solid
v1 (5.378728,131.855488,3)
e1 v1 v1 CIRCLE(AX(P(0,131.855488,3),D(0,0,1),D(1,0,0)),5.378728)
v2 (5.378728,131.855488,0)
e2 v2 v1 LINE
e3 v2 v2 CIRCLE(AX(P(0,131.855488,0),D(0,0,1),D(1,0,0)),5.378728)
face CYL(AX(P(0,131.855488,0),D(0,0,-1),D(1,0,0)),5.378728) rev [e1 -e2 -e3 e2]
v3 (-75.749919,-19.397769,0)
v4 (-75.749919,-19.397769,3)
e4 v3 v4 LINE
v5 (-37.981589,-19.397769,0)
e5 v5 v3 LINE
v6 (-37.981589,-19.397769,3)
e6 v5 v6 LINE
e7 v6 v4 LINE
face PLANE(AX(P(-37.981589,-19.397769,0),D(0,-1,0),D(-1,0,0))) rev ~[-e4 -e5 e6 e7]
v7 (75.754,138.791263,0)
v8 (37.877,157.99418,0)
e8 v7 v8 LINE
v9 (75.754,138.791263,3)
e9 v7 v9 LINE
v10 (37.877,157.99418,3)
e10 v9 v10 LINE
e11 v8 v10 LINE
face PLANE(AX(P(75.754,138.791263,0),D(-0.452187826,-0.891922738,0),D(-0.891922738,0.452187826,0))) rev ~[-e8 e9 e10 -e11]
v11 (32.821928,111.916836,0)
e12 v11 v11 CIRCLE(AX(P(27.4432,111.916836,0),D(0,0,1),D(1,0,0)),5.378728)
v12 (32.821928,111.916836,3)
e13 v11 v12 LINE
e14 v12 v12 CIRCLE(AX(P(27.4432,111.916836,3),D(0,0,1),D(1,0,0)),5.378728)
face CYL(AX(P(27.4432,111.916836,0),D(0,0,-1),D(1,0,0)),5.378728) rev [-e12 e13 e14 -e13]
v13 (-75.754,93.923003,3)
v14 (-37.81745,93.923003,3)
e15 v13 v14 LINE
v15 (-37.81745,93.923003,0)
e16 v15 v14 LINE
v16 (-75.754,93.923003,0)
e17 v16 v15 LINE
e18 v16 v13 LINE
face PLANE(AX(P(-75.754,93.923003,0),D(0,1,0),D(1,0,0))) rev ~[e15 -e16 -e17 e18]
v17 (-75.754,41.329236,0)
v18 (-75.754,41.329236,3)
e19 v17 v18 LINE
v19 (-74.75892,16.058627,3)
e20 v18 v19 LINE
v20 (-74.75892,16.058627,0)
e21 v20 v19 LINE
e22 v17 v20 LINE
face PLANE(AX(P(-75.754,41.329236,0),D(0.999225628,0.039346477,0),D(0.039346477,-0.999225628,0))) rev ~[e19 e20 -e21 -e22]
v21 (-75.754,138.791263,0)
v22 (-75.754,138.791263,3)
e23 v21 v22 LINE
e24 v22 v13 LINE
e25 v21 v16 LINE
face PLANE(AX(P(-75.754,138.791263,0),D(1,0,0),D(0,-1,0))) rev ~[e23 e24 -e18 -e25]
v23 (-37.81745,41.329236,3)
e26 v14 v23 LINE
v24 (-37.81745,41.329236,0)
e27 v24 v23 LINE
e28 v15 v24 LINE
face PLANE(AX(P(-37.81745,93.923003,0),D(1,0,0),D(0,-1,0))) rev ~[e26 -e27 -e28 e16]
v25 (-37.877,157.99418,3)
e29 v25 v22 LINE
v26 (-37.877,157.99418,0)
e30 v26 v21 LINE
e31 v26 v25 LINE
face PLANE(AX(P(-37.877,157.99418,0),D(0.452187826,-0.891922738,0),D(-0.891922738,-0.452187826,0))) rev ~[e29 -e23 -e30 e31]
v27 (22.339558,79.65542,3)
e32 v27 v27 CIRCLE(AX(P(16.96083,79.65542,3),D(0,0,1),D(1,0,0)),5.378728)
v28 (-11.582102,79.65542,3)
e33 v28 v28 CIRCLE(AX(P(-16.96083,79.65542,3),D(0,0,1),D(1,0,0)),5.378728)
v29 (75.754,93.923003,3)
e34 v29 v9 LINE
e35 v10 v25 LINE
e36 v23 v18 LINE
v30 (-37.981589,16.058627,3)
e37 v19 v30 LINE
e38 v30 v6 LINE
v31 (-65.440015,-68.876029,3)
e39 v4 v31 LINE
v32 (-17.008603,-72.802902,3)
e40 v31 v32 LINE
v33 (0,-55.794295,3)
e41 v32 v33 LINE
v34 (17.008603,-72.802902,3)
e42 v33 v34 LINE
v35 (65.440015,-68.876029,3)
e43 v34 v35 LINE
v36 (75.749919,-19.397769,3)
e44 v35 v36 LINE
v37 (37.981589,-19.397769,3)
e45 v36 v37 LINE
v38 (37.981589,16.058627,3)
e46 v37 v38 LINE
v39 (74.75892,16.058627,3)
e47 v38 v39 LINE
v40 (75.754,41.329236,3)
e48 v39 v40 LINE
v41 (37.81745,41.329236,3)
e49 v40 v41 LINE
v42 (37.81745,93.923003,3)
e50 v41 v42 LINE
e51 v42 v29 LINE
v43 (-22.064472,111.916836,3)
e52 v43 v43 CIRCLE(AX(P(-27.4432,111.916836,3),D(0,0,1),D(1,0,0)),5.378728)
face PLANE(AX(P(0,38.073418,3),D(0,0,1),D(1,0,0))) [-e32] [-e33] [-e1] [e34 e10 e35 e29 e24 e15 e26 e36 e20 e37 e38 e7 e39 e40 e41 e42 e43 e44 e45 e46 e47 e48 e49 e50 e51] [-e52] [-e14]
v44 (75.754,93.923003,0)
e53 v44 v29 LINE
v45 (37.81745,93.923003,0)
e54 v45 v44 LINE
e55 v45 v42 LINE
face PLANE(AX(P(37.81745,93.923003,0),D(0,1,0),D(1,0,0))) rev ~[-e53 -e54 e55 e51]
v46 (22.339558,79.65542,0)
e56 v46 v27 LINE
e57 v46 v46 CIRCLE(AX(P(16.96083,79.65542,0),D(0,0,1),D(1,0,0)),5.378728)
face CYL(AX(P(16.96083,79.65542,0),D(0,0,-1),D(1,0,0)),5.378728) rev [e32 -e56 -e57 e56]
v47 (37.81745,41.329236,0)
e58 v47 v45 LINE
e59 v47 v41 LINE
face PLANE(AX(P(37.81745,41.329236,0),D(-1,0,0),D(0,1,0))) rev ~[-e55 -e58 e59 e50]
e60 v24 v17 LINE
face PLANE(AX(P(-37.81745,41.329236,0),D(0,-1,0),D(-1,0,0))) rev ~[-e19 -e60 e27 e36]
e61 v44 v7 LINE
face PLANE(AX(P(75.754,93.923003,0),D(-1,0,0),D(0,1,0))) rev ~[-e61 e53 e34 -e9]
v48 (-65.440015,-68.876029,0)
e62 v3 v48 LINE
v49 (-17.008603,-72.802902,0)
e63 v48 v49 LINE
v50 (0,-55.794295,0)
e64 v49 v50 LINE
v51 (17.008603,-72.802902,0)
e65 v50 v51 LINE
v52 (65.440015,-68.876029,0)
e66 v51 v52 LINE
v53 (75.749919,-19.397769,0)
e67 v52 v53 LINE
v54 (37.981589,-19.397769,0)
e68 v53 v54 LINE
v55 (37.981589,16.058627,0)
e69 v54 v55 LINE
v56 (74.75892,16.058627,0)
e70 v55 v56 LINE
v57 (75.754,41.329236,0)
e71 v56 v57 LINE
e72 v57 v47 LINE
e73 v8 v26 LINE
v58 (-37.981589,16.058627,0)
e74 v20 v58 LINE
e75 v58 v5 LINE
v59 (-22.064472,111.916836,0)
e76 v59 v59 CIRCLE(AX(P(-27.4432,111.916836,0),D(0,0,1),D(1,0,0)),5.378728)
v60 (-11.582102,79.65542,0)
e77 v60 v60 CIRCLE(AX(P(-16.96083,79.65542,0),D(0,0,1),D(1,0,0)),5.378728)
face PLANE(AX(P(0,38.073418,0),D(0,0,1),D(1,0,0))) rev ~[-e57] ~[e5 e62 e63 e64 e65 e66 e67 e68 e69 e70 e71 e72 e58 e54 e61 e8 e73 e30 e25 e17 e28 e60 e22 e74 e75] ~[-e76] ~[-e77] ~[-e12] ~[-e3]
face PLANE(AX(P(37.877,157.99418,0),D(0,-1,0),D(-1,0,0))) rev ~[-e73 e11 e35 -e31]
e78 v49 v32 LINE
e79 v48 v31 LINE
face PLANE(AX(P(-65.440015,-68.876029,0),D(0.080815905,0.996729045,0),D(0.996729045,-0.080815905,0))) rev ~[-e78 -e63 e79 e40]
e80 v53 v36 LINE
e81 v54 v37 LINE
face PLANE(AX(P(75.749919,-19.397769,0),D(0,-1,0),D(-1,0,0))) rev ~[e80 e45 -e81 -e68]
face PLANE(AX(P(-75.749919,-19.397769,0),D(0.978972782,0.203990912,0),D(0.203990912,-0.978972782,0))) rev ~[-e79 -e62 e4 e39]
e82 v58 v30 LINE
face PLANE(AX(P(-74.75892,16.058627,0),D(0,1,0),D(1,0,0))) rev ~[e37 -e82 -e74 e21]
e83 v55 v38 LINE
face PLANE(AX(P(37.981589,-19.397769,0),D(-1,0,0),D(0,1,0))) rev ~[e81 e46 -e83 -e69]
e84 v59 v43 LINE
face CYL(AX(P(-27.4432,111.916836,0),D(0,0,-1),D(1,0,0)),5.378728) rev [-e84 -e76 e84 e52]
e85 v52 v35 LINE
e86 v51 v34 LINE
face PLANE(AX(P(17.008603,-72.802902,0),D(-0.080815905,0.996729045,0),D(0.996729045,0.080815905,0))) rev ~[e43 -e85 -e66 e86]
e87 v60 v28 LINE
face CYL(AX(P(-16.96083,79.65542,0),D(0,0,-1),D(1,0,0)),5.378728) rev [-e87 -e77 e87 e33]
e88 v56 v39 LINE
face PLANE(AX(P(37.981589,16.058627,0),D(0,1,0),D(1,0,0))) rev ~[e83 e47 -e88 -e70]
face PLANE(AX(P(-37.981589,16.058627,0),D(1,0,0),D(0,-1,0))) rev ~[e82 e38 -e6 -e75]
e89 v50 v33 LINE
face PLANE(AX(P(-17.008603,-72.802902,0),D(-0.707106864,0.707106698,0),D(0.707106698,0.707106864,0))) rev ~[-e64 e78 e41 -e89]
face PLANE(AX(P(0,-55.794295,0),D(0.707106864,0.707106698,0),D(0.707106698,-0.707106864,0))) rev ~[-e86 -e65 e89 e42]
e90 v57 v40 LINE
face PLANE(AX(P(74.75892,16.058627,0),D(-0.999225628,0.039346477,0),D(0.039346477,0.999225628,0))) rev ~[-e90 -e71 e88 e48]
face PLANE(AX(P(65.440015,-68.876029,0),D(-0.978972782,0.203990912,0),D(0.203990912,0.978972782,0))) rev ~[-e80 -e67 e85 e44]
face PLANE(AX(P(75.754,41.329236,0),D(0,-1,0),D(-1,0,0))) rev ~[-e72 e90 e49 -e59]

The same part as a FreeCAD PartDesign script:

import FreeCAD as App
import Part
import Sketcher

V = App.Vector


def add_polygon(sketch, points):
    """Adds a closed chain of lines whose ends are joined by coincident constraints."""
    first, n = sketch.GeometryCount, len(points)
    for a, b in zip(points, points[1:] + points[:1]):
        sketch.addGeometry(Part.LineSegment(App.Vector(*a, 0), App.Vector(*b, 0)), False)
    for i in range(n):
        sketch.addConstraint(Sketcher.Constraint("Coincident", first + i, 2, first + (i + 1) % n, 1))

doc = App.newDocument("Part")
body = doc.addObject("PartDesign::Body", "Body")

# Sketch on XY plane
sketch1 = body.newObject("Sketcher::SketchObject", "Sketch")
sketch1.AttachmentSupport = (doc.getObject("XY_Plane"), [""])
sketch1.MapMode = "FlatFace"
add_polygon(sketch1, [(38, 158), (-38, 158), (-76, 139), (-76, 94), (-38, 94), (-38, 41), (-76, 41), (-75, 16), (-38, 16), (-38, -19), (-76, -19), (-65, -69), (-17, -73), (0, -56), (17, -73), (65, -69), (76, -19), (38, -19), (38, 16), (75, 16), (76, 41), (38, 41), (38, 94), (76, 94), (76, 139)])  # lines 0-24
sketch1.addGeometry(Part.Circle(V(-17, 80, 0), V(0, 0, 1), 5), False)  # 25
sketch1.addGeometry(Part.Circle(V(17, 80, 0), V(0, 0, 1), 5), False)  # 26
sketch1.addGeometry(Part.Circle(V(-27, 112, 0), V(0, 0, 1), 5), False)  # 27
sketch1.addGeometry(Part.Circle(V(27, 112, 0), V(0, 0, 1), 5), False)  # 28
sketch1.addGeometry(Part.Circle(V(0, 132, 0), V(0, 0, 1), 5), False)  # 29
sketch1.addConstraint([
    Sketcher.Constraint("Horizontal", 0),
    Sketcher.Constraint("Vertical", 2),
    Sketcher.Constraint("Horizontal", 3),
    Sketcher.Constraint("Vertical", 4),
    Sketcher.Constraint("Horizontal", 5),
    Sketcher.Constraint("Horizontal", 7),
    Sketcher.Constraint("Vertical", 8),
    Sketcher.Constraint("Horizontal", 9),
    Sketcher.Constraint("Horizontal", 16),
    Sketcher.Constraint("Vertical", 17),
    Sketcher.Constraint("Horizontal", 18),
    Sketcher.Constraint("Horizontal", 20),
    Sketcher.Constraint("Vertical", 21),
    Sketcher.Constraint("Horizontal", 22),
    Sketcher.Constraint("Vertical", 23),
    Sketcher.Constraint("Equal", 25, 26),
    Sketcher.Constraint("Equal", 26, 27),
    Sketcher.Constraint("Equal", 27, 28),
    Sketcher.Constraint("Equal", 28, 29),
    Sketcher.Constraint("Symmetric", 25, 3, 26, 3, -2),
    Sketcher.Constraint("Symmetric", 27, 3, 28, 3, -2),
    Sketcher.Constraint("Symmetric", 11, 2, 13, 2, -2),
    Sketcher.Constraint("Symmetric", 10, 2, 14, 2, -2),
    Sketcher.Constraint("Symmetric", 9, 2, 15, 2, -2),
    Sketcher.Constraint("Symmetric", 7, 2, 17, 2, -2),
    Sketcher.Constraint("Symmetric", 5, 2, 19, 2, -2),
    Sketcher.Constraint("Symmetric", 3, 2, 21, 2, -2),
    Sketcher.Constraint("Symmetric", 1, 2, 23, 2, -2),
    Sketcher.Constraint("PointOnObject", 29, 3, -2),
    Sketcher.Constraint("PointOnObject", 12, 2, -2),
    Sketcher.Constraint("Perpendicular", 12, 13),
    Sketcher.Constraint("Vertical", 2, 2, 5, 2),
    Sketcher.Constraint("Equal", 7, 18),
    Sketcher.Constraint("Equal", 1, 24),
    Sketcher.Constraint("DistanceX", 0, 2, 0, 1, 75.754),
    Sketcher.Constraint("Diameter", 25, 10.757456),
    Sketcher.Constraint("DistanceX", 1, 2, -1, 1, 75.754),
    Sketcher.Constraint("DistanceX", 9, 2, 6, 2, 0.990999),
    Sketcher.Constraint("Distance", 12, 24.0538),
    Sketcher.Constraint("DistanceX", 3, 1, 3, 2, 37.93655),
    Sketcher.Constraint("DistanceX", 7, 1, 7, 2, 36.777331),
    Sketcher.Constraint("DistanceY", 2, 2, 2, 1, 44.86826),
    Sketcher.Constraint("DistanceX", 27, 3, -1, 1, 27.4432),
    Sketcher.Constraint("DistanceY", 4, 2, 27, 3, 70.5876),
    Sketcher.Constraint("Distance", 11, 48.590349),
    Sketcher.Constraint("DistanceY", 4, 2, 4, 1, 52.593767),
    Sketcher.Constraint("DistanceY", 8, 2, 8, 1, 35.456396),
    Sketcher.Constraint("DistanceX", 25, 3, -1, 1, 16.96083),
    Sketcher.Constraint("DistanceY", -1, 1, 25, 3, 79.65542),
    Sketcher.Constraint("DistanceY", -1, 1, 29, 3, 131.855488),
    Sketcher.Constraint("DistanceY", -1, 1, 0, 2, 157.99418),
    Sketcher.Constraint("DistanceX", 6, 2, -1, 1, 74.75892),
    Sketcher.Constraint("DistanceY", 8, 2, -1, 1, 19.397769),
    Sketcher.Constraint("DistanceY", 10, 2, -1, 1, 68.876029),
    Sketcher.Constraint("DistanceY", 6, 2, 5, 2, 25.270609),
    Sketcher.Constraint("DistanceY", 11, 2, 7, 2, 88.861529),
])
pad1 = body.newObject("PartDesign::Pad", "Pad")
pad1.Profile = sketch1
pad1.Length = 3

doc.recompute()
